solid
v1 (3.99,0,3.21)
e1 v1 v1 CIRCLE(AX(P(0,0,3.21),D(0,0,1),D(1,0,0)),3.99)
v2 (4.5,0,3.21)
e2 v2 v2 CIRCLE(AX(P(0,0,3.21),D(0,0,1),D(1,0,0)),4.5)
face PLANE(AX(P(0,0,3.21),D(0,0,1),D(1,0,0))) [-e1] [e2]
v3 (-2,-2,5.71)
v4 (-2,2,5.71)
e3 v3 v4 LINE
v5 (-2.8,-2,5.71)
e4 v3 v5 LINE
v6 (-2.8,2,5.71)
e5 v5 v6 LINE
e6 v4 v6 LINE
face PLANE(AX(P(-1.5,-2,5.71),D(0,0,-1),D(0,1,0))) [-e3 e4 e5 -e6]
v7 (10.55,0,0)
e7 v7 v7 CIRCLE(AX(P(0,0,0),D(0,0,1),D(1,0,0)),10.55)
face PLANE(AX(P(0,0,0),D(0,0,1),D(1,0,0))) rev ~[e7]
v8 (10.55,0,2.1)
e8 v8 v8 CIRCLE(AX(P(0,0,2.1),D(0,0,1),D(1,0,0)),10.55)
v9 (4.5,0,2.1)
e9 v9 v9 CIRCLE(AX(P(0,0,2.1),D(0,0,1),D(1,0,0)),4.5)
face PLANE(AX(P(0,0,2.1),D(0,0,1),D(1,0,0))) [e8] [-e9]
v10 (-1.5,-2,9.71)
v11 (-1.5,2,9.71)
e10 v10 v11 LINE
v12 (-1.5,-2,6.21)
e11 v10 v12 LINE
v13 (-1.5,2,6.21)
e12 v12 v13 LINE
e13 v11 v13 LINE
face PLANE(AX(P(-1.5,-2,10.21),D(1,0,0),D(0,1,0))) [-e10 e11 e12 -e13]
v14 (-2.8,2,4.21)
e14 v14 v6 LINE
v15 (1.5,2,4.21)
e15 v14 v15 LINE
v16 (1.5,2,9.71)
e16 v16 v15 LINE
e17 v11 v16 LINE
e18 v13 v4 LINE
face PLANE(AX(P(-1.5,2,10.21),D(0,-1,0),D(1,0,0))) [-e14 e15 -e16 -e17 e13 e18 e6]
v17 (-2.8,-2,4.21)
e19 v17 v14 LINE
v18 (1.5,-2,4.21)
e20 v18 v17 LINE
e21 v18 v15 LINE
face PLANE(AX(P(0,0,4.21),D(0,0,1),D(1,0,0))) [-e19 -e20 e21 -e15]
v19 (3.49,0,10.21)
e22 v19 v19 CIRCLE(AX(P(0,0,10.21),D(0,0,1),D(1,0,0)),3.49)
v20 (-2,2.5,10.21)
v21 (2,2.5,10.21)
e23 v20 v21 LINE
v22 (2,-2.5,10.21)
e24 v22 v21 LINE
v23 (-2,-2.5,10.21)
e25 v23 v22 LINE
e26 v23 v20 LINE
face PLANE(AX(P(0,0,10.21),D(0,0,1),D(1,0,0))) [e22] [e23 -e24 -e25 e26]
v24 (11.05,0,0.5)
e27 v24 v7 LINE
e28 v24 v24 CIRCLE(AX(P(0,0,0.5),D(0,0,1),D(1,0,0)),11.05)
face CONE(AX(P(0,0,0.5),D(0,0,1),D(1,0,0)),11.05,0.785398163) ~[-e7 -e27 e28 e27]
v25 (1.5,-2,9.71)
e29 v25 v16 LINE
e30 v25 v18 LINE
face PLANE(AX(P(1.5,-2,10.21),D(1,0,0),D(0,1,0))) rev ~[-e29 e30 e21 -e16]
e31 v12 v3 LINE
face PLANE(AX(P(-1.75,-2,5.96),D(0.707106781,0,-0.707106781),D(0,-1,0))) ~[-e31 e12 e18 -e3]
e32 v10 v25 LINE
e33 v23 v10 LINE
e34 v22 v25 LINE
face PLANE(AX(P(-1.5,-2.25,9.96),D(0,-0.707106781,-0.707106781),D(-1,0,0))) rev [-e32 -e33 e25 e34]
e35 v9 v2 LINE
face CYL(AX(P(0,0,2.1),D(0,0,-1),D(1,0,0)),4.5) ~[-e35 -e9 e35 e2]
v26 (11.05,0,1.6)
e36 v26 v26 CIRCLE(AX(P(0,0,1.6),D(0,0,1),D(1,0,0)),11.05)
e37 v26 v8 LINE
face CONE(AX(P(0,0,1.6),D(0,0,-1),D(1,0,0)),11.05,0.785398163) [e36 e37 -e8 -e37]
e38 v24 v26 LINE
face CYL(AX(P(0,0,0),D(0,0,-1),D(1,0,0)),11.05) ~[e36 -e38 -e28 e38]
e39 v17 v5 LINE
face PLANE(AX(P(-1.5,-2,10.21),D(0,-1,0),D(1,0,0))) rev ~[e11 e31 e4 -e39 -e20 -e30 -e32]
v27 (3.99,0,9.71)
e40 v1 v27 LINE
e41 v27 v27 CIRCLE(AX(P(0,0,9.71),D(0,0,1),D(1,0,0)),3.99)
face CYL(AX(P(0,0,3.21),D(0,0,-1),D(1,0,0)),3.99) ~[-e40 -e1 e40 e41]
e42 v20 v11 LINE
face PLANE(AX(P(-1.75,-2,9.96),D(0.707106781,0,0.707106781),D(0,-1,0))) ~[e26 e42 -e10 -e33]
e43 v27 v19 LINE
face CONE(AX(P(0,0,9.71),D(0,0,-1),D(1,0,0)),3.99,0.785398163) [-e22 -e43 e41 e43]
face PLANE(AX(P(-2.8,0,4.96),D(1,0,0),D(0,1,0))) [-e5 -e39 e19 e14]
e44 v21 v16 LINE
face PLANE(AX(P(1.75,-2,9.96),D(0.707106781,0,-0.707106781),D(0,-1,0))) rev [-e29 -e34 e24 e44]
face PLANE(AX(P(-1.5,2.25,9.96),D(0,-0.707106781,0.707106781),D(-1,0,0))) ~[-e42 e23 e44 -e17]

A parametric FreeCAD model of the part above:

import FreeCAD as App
import Part
import Sketcher


def edges_at(feature, points):
    """Names of the edges that pass closest to the given points."""
    edges = feature.Shape.Edges
    near = lambda p: min(range(len(edges)), key=lambda i: edges[i].distToShape(Part.Vertex(*p))[0])
    return sorted({f"Edge{near(p) + 1}" for p in points})


def add_polygon(sketch, points):
    """Adds a closed chain of lines whose ends are joined by coincident constraints."""
    first, n = sketch.GeometryCount, len(points)
    for a, b in zip(points, points[1:] + points[:1]):
        sketch.addGeometry(Part.LineSegment(App.Vector(*a, 0), App.Vector(*b, 0)), False)
    for i in range(n):
        sketch.addConstraint(Sketcher.Constraint("Coincident", first + i, 2, first + (i + 1) % n, 1))

doc = App.newDocument("Part")
body = doc.addObject("PartDesign::Body", "Body")

# Sketch on XY plane
sketch1 = doc.addObject("Sketcher::SketchObject", "Sketch")
body.addObject(sketch1)
sketch1.AttachmentSupport = (doc.XY_Plane, [""])
sketch1.MapMode = "FlatFace"
sketch1.addGeometry(Part.Circle(App.Vector(0, 0, 0), App.Vector(0, 0, 1), 11.05), False)
sketch1.addConstraint([
    Sketcher.Constraint("Coincident", 0, 3, -1, 1),
    Sketcher.Constraint("Diameter", 0, 22.1),
])
pad1 = doc.addObject("PartDesign::Pad", "Pad")
body.addObject(pad1)
pad1.Profile = sketch1
pad1.Length = 2.1

# Sketch on XY plane
sketch2 = doc.addObject("Sketcher::SketchObject", "Sketch001")
body.addObject(sketch2)
sketch2.AttachmentSupport = (doc.XY_Plane, [""])
sketch2.MapMode = "FlatFace"
sketch2.AttachmentOffset = App.Placement(App.Vector(0, 0, 2.1), App.Rotation())
sketch2.addGeometry(Part.Circle(App.Vector(0, 0, 0), App.Vector(0, 0, 1), 4.5), False)
sketch2.addConstraint([
    Sketcher.Constraint("Coincident", 0, 3, -1, 1),
    Sketcher.Constraint("Diameter", 0, 9.0),
])
pad2 = doc.addObject("PartDesign::Pad", "Pad001")
body.addObject(pad2)
pad2.Profile = sketch2
pad2.Length = 1.11

# Sketch on XY plane
sketch3 = doc.addObject("Sketcher::SketchObject", "Sketch002")
body.addObject(sketch3)
sketch3.AttachmentSupport = (doc.XY_Plane, [""])
sketch3.MapMode = "FlatFace"
sketch3.AttachmentOffset = App.Placement(App.Vector(0, 0, 3.21), App.Rotation())
sketch3.addGeometry(Part.Circle(App.Vector(0, 0, 0), App.Vector(0, 0, 1), 3.99), False)
sketch3.addConstraint([
    Sketcher.Constraint("Coincident", 0, 3, -1, 1),
    Sketcher.Constraint("Diameter", 0, 7.98),
])
pad3 = doc.addObject("PartDesign::Pad", "Pad002")
body.addObject(pad3)
pad3.Profile = sketch3
pad3.Length = 7

# Sketch on XY plane
sketch4 = doc.addObject("Sketcher::SketchObject", "Sketch003")
body.addObject(sketch4)
sketch4.AttachmentSupport = (doc.XY_Plane, [""])
sketch4.MapMode = "FlatFace"
sketch4.AttachmentOffset = App.Placement(App.Vector(0, 0, 10.21), App.Rotation())
add_polygon(sketch4, [(-1.5, 2), (-1.5, -2), (1.5, -2), (1.5, 2)])  # lines 0-3
sketch4.addConstraint([
    Sketcher.Constraint("Vertical", 0),
    Sketcher.Constraint("Horizontal", 1),
    Sketcher.Constraint("Vertical", 2),
    Sketcher.Constraint("Horizontal", 3),
    Sketcher.Constraint("Symmetric", 0, 2, 2, 2, -1, 1),
    Sketcher.Constraint("DistanceX", 1, 1, 1, 2, 3.0),
    Sketcher.Constraint("DistanceY", 0, 2, 0, 1, 4.0),
])
pocket1 = doc.addObject("PartDesign::Pocket", "Pocket")
body.addObject(pocket1)
pocket1.Profile = sketch4
pocket1.Length = 6

# Sketch on YZ plane
sketch5 = doc.addObject("Sketcher::SketchObject", "Sketch004")
body.addObject(sketch5)
sketch5.AttachmentSupport = (doc.YZ_Plane, [""])
sketch5.MapMode = "FlatFace"
sketch5.AttachmentOffset = App.Placement(App.Vector(0, 0, -1.5), App.Rotation())
add_polygon(sketch5, [(-2, 5.71), (-2, 4.21), (2, 4.21), (2, 5.71)])  # lines 0-3
sketch5.addConstraint([
    Sketcher.Constraint("Vertical", 0),
    Sketcher.Constraint("Horizontal", 1),
    Sketcher.Constraint("Vertical", 2),
    Sketcher.Constraint("Horizontal", 3),
    Sketcher.Constraint("DistanceX", 1, 1, 1, 2, 4.0),
    Sketcher.Constraint("DistanceY", 0, 2, 0, 1, 1.5),
    Sketcher.Constraint("DistanceX", 0, 2, -1, 1, 2.0),
    Sketcher.Constraint("DistanceY", -1, 1, 0, 2, 4.21),
])
pocket2 = doc.addObject("PartDesign::Pocket", "Pocket001")
body.addObject(pocket2)
pocket2.Profile = sketch5
pocket2.Length = 1.3
doc.recompute()

chamfer = doc.addObject("PartDesign::Chamfer", "Chamfer")
body.addObject(chamfer)
chamfer.Base = (pocket2, edges_at(pocket2, [
    (-1.5, 0, 5.71),
    (0, 2, 10.21),
    (-1.5, 0, 10.21),
    (1.5, 0, 10.21),
    (0, -2, 10.21),
    (-3.99, 0, 10.21),
    (-11.05, 0, 0),
    (-11.05, 0, 2.1),
]))
chamfer.Size = 0.5

doc.recompute()
